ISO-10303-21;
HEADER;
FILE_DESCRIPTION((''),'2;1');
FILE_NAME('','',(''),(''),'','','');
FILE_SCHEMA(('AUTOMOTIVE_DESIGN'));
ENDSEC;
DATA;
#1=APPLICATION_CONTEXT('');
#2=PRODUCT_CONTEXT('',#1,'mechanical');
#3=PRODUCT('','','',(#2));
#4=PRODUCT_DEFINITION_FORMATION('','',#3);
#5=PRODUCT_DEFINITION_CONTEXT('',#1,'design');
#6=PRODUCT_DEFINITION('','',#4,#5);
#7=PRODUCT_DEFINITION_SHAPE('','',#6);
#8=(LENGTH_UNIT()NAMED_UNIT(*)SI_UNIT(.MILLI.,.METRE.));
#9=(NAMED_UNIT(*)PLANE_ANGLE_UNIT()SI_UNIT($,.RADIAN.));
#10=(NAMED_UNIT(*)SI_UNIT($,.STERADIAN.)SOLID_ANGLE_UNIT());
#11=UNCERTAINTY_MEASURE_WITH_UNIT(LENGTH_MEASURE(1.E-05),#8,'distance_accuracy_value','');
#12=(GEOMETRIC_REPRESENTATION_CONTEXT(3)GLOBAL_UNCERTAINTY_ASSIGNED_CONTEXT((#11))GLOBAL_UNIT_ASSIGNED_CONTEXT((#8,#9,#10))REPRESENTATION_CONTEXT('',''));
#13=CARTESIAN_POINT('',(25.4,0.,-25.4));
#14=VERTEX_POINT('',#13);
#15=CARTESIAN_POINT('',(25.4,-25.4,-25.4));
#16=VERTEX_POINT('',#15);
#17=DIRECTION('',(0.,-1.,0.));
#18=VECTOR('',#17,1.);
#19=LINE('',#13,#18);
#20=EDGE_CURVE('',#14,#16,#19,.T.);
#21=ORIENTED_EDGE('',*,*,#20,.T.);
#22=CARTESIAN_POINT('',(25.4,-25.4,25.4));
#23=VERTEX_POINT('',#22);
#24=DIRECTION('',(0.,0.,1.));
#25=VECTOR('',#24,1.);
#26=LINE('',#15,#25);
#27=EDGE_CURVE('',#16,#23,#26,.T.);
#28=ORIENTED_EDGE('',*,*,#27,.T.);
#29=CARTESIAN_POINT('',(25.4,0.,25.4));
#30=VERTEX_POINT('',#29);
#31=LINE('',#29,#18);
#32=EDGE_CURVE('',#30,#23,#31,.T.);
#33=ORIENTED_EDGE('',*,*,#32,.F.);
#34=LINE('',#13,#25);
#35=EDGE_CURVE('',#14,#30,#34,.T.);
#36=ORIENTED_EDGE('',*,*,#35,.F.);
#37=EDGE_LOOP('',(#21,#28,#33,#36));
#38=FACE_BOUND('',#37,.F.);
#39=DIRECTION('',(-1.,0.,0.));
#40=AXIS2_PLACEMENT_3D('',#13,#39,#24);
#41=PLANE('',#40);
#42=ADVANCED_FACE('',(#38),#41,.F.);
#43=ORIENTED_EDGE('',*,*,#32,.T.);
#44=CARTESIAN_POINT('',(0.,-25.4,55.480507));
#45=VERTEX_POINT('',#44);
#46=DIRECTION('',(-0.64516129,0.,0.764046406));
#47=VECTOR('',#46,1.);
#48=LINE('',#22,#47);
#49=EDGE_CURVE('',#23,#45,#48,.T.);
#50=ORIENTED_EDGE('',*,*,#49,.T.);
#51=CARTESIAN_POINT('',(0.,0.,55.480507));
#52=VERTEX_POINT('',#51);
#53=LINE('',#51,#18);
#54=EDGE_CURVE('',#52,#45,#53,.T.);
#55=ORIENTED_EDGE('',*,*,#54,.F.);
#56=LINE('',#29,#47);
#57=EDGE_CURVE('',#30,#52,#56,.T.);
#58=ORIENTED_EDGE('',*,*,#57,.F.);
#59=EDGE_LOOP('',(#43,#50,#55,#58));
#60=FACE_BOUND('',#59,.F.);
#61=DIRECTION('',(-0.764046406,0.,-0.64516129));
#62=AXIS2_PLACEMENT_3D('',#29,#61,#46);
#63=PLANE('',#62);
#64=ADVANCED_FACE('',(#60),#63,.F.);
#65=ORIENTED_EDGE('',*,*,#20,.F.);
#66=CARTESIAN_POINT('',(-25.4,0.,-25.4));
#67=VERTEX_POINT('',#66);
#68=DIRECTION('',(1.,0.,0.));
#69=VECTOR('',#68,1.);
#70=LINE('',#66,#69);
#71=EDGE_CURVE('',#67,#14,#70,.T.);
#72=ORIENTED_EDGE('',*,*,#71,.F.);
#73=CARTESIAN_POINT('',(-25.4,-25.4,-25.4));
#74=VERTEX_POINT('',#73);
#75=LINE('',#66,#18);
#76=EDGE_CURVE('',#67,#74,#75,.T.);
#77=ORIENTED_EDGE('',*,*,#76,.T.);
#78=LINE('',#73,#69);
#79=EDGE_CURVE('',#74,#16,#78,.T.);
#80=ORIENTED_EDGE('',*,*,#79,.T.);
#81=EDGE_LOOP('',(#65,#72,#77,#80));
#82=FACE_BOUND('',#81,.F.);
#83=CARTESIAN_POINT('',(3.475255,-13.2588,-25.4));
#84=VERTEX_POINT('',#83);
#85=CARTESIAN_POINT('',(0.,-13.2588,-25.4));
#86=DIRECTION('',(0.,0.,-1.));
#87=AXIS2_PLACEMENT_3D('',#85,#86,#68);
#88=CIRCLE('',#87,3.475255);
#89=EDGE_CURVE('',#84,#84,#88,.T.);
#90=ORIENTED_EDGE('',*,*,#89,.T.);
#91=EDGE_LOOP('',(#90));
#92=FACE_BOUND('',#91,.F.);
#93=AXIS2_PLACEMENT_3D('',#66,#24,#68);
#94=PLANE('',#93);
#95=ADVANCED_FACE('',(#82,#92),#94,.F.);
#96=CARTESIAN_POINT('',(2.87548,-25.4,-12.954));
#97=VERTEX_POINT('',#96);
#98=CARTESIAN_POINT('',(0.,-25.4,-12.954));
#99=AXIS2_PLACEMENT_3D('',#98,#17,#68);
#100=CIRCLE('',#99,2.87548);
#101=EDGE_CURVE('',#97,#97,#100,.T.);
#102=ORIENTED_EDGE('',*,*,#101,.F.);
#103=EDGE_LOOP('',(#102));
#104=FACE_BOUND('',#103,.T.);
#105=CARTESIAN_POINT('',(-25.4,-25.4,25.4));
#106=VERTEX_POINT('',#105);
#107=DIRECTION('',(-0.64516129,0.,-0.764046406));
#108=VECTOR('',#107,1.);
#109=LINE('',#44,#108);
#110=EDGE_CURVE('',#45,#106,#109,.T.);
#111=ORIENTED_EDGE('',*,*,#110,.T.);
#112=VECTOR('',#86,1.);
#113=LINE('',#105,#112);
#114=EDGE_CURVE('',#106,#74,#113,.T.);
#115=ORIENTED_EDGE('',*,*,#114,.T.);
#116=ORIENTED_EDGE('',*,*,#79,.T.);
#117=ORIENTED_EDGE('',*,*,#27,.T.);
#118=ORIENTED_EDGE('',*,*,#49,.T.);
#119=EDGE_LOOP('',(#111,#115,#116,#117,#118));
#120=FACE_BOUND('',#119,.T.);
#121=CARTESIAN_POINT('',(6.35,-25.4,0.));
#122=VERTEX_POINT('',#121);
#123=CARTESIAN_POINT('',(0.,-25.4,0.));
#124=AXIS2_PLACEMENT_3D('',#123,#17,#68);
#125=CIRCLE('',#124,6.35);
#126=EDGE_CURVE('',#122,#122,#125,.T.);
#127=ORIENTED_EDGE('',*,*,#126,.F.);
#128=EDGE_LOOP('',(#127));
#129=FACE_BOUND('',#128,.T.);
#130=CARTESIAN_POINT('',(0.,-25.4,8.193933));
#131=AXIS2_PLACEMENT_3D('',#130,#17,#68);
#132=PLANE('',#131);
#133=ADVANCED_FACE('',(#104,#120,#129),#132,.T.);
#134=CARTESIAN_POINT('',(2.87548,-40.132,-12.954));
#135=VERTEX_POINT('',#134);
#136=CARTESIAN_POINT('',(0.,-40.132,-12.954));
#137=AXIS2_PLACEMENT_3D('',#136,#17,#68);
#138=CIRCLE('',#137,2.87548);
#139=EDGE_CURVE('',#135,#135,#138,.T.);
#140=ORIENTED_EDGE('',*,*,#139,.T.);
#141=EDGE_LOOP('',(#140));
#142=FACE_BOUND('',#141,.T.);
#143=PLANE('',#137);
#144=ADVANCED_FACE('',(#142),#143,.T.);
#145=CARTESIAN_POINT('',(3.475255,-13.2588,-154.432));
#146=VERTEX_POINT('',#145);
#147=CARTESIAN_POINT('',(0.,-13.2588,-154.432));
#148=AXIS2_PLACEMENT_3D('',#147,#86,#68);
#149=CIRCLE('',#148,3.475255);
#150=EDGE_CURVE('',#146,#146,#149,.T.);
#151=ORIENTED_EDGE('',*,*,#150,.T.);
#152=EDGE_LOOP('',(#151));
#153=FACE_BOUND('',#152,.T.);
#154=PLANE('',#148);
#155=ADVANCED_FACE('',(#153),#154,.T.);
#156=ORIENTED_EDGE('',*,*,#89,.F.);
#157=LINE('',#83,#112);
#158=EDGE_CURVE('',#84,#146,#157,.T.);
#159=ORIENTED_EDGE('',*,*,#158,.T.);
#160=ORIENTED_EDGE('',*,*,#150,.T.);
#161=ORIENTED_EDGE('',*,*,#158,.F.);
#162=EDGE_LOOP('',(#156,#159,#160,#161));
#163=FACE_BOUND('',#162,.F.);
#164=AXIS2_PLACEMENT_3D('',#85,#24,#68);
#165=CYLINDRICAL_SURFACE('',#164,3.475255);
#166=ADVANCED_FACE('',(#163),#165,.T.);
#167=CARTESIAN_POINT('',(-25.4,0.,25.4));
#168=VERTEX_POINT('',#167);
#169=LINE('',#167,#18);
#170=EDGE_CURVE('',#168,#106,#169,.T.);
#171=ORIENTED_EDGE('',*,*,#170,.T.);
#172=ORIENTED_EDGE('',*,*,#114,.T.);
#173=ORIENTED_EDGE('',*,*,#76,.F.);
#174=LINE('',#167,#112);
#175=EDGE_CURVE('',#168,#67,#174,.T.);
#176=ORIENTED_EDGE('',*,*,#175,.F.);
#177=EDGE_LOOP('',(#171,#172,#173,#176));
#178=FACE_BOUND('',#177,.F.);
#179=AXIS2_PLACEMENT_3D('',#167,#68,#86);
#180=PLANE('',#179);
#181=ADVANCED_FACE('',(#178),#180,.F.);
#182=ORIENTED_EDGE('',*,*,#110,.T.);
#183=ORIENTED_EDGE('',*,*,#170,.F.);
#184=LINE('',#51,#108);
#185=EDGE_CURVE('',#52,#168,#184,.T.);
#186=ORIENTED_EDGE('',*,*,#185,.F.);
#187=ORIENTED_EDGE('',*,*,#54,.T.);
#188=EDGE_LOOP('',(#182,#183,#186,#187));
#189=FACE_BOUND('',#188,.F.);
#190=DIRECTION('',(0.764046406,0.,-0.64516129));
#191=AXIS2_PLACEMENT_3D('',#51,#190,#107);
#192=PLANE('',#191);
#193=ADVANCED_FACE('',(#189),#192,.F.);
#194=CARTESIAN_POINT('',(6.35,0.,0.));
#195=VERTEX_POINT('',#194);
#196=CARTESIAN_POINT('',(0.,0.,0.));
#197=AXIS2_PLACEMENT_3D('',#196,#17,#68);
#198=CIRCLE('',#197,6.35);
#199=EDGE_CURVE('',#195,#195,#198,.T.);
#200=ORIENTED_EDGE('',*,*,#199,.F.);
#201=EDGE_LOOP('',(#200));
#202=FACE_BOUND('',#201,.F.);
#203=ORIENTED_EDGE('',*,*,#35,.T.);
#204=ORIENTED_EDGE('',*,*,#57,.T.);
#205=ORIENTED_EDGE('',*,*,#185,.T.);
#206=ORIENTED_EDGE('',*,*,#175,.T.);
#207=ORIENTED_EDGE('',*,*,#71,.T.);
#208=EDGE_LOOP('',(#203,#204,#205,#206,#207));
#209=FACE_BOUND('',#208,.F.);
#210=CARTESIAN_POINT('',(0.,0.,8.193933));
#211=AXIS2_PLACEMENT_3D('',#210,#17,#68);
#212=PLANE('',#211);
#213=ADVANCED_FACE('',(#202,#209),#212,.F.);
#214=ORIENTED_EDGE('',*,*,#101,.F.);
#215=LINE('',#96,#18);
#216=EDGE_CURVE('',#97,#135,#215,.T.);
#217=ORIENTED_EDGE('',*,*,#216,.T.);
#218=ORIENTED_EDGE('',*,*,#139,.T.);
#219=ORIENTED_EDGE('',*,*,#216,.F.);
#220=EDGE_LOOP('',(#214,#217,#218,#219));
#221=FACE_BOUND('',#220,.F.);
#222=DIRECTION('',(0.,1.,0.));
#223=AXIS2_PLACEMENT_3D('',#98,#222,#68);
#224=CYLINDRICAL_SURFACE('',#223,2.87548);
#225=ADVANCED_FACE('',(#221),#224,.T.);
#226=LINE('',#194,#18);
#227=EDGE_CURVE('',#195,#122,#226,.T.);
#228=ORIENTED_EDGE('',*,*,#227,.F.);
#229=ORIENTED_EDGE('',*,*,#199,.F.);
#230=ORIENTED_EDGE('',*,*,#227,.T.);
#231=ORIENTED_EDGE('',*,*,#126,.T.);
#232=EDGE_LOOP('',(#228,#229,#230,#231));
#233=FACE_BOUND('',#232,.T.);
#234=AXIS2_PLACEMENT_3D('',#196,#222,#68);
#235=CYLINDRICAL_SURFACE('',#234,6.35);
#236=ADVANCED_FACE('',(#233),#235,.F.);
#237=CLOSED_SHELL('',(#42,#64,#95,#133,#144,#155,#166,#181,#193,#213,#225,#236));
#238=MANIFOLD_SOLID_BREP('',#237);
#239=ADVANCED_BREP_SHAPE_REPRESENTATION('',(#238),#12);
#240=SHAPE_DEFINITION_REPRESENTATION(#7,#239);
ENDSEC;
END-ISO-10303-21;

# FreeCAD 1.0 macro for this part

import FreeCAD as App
import Part
import Sketcher

V = App.Vector
Q = App.Units.Quantity

doc = App.newDocument("Part")
body = doc.addObject("PartDesign::Body", "Body")

sketch1 = doc.addObject("Sketcher::SketchObject", "Sketch")
body.addObject(sketch1)
sketch1.AttachmentSupport = (doc.XZ_Plane, [""])
sketch1.MapMode = "FlatFace"
sketch1.addGeometry(Part.LineSegment(V(-25, -25, 0), V(25, -25, 0)), False)
sketch1.addGeometry(Part.LineSegment(V(25, -25, 0), V(25, 25, 0)), False)
sketch1.addGeometry(Part.LineSegment(V(25, 25, 0), V(0, 55, 0)), False)
sketch1.addGeometry(Part.LineSegment(V(0, 55, 0), V(-25, 25, 0)), False)
sketch1.addGeometry(Part.LineSegment(V(-25, 25, 0), V(-25, -25, 0)), False)
sketch1.addGeometry(Part.Circle(V(0, 0, 0), V(0, 0, 1), 6), False)
sketch1.addConstraint(Sketcher.Constraint("Coincident", 0, 2, 1, 1))
sketch1.addConstraint(Sketcher.Constraint("Coincident", 1, 2, 2, 1))
sketch1.addConstraint(Sketcher.Constraint("Coincident", 2, 2, 3, 1))
sketch1.addConstraint(Sketcher.Constraint("Coincident", 3, 2, 4, 1))
sketch1.addConstraint(Sketcher.Constraint("Coincident", 4, 2, 0, 1))
sketch1.addConstraint(Sketcher.Constraint("Horizontal", 0))
sketch1.addConstraint(Sketcher.Constraint("Vertical", 1))
sketch1.addConstraint(Sketcher.Constraint("Vertical", 4))
sketch1.addConstraint(Sketcher.Constraint("Coincident", 5, 3, -1, 1))
sketch1.addConstraint(Sketcher.Constraint("Symmetric", 0, 2, 3, 2, -1, 1))
sketch1.addConstraint(Sketcher.Constraint("PointOnObject", 2, 2, -2))
sketch1.addConstraint(Sketcher.Constraint("Horizontal", 1, 2, 3, 2))
sketch1.addConstraint(Sketcher.Constraint("Equal", 0, 1))
sketch1.addConstraint(Sketcher.Constraint("Diameter", 5, Q("0.5 in")))
sketch1.addConstraint(Sketcher.Constraint("DistanceX", 0, 1, 0, 2, Q("2 in")))
sketch1.addConstraint(Sketcher.Constraint("Distance", 2, Q("1.55 in")))
pad1 = doc.addObject("PartDesign::Pad", "Pad")
body.addObject(pad1)
pad1.Profile = sketch1
pad1.Length = Q("1 in")

sketch2 = doc.addObject("Sketcher::SketchObject", "Sketch001")
body.addObject(sketch2)
sketch2.AttachmentSupport = (doc.XZ_Plane, [""])
sketch2.MapMode = "FlatFace"
sketch2.AttachmentOffset = App.Placement(V(0, 0, 1 * 25.4), App.Rotation())
sketch2.addGeometry(Part.Circle(V(0, -13, 0), V(0, 0, 1), 2.9), False)
sketch2.addConstraint(Sketcher.Constraint("PointOnObject", 0, 3, -2))
sketch2.addConstraint(Sketcher.Constraint("DistanceY", 0, 3, -1, 1, Q("0.51 in")))
sketch2.addConstraint(Sketcher.Constraint("Diameter", 0, 5.75096))
pad2 = doc.addObject("PartDesign::Pad", "Pad001")
body.addObject(pad2)
pad2.Profile = sketch2
pad2.Length = Q("0.58 in")

sketch3 = doc.addObject("Sketcher::SketchObject", "Sketch002")
body.addObject(sketch3)
sketch3.AttachmentSupport = (doc.XY_Plane, [""])
sketch3.MapMode = "FlatFace"
sketch3.AttachmentOffset = App.Placement(V(0, 0, -1 * 25.4), App.Rotation())
sketch3.addGeometry(Part.Circle(V(0, -13.3, 0), V(0, 0, 1), 3.5), False)
sketch3.addConstraint(Sketcher.Constraint("PointOnObject", 0, 3, -2))
sketch3.addConstraint(Sketcher.Constraint("Diameter", 0, 6.95051))
sketch3.addConstraint(Sketcher.Constraint("DistanceY", 0, 3, -1, 1, Q("0.522 in")))
pad3 = doc.addObject("PartDesign::Pad", "Pad002")
body.addObject(pad3)
pad3.Profile = sketch3
pad3.Length = Q("5.08 in")
pad3.Reversed = True

doc.recompute()
